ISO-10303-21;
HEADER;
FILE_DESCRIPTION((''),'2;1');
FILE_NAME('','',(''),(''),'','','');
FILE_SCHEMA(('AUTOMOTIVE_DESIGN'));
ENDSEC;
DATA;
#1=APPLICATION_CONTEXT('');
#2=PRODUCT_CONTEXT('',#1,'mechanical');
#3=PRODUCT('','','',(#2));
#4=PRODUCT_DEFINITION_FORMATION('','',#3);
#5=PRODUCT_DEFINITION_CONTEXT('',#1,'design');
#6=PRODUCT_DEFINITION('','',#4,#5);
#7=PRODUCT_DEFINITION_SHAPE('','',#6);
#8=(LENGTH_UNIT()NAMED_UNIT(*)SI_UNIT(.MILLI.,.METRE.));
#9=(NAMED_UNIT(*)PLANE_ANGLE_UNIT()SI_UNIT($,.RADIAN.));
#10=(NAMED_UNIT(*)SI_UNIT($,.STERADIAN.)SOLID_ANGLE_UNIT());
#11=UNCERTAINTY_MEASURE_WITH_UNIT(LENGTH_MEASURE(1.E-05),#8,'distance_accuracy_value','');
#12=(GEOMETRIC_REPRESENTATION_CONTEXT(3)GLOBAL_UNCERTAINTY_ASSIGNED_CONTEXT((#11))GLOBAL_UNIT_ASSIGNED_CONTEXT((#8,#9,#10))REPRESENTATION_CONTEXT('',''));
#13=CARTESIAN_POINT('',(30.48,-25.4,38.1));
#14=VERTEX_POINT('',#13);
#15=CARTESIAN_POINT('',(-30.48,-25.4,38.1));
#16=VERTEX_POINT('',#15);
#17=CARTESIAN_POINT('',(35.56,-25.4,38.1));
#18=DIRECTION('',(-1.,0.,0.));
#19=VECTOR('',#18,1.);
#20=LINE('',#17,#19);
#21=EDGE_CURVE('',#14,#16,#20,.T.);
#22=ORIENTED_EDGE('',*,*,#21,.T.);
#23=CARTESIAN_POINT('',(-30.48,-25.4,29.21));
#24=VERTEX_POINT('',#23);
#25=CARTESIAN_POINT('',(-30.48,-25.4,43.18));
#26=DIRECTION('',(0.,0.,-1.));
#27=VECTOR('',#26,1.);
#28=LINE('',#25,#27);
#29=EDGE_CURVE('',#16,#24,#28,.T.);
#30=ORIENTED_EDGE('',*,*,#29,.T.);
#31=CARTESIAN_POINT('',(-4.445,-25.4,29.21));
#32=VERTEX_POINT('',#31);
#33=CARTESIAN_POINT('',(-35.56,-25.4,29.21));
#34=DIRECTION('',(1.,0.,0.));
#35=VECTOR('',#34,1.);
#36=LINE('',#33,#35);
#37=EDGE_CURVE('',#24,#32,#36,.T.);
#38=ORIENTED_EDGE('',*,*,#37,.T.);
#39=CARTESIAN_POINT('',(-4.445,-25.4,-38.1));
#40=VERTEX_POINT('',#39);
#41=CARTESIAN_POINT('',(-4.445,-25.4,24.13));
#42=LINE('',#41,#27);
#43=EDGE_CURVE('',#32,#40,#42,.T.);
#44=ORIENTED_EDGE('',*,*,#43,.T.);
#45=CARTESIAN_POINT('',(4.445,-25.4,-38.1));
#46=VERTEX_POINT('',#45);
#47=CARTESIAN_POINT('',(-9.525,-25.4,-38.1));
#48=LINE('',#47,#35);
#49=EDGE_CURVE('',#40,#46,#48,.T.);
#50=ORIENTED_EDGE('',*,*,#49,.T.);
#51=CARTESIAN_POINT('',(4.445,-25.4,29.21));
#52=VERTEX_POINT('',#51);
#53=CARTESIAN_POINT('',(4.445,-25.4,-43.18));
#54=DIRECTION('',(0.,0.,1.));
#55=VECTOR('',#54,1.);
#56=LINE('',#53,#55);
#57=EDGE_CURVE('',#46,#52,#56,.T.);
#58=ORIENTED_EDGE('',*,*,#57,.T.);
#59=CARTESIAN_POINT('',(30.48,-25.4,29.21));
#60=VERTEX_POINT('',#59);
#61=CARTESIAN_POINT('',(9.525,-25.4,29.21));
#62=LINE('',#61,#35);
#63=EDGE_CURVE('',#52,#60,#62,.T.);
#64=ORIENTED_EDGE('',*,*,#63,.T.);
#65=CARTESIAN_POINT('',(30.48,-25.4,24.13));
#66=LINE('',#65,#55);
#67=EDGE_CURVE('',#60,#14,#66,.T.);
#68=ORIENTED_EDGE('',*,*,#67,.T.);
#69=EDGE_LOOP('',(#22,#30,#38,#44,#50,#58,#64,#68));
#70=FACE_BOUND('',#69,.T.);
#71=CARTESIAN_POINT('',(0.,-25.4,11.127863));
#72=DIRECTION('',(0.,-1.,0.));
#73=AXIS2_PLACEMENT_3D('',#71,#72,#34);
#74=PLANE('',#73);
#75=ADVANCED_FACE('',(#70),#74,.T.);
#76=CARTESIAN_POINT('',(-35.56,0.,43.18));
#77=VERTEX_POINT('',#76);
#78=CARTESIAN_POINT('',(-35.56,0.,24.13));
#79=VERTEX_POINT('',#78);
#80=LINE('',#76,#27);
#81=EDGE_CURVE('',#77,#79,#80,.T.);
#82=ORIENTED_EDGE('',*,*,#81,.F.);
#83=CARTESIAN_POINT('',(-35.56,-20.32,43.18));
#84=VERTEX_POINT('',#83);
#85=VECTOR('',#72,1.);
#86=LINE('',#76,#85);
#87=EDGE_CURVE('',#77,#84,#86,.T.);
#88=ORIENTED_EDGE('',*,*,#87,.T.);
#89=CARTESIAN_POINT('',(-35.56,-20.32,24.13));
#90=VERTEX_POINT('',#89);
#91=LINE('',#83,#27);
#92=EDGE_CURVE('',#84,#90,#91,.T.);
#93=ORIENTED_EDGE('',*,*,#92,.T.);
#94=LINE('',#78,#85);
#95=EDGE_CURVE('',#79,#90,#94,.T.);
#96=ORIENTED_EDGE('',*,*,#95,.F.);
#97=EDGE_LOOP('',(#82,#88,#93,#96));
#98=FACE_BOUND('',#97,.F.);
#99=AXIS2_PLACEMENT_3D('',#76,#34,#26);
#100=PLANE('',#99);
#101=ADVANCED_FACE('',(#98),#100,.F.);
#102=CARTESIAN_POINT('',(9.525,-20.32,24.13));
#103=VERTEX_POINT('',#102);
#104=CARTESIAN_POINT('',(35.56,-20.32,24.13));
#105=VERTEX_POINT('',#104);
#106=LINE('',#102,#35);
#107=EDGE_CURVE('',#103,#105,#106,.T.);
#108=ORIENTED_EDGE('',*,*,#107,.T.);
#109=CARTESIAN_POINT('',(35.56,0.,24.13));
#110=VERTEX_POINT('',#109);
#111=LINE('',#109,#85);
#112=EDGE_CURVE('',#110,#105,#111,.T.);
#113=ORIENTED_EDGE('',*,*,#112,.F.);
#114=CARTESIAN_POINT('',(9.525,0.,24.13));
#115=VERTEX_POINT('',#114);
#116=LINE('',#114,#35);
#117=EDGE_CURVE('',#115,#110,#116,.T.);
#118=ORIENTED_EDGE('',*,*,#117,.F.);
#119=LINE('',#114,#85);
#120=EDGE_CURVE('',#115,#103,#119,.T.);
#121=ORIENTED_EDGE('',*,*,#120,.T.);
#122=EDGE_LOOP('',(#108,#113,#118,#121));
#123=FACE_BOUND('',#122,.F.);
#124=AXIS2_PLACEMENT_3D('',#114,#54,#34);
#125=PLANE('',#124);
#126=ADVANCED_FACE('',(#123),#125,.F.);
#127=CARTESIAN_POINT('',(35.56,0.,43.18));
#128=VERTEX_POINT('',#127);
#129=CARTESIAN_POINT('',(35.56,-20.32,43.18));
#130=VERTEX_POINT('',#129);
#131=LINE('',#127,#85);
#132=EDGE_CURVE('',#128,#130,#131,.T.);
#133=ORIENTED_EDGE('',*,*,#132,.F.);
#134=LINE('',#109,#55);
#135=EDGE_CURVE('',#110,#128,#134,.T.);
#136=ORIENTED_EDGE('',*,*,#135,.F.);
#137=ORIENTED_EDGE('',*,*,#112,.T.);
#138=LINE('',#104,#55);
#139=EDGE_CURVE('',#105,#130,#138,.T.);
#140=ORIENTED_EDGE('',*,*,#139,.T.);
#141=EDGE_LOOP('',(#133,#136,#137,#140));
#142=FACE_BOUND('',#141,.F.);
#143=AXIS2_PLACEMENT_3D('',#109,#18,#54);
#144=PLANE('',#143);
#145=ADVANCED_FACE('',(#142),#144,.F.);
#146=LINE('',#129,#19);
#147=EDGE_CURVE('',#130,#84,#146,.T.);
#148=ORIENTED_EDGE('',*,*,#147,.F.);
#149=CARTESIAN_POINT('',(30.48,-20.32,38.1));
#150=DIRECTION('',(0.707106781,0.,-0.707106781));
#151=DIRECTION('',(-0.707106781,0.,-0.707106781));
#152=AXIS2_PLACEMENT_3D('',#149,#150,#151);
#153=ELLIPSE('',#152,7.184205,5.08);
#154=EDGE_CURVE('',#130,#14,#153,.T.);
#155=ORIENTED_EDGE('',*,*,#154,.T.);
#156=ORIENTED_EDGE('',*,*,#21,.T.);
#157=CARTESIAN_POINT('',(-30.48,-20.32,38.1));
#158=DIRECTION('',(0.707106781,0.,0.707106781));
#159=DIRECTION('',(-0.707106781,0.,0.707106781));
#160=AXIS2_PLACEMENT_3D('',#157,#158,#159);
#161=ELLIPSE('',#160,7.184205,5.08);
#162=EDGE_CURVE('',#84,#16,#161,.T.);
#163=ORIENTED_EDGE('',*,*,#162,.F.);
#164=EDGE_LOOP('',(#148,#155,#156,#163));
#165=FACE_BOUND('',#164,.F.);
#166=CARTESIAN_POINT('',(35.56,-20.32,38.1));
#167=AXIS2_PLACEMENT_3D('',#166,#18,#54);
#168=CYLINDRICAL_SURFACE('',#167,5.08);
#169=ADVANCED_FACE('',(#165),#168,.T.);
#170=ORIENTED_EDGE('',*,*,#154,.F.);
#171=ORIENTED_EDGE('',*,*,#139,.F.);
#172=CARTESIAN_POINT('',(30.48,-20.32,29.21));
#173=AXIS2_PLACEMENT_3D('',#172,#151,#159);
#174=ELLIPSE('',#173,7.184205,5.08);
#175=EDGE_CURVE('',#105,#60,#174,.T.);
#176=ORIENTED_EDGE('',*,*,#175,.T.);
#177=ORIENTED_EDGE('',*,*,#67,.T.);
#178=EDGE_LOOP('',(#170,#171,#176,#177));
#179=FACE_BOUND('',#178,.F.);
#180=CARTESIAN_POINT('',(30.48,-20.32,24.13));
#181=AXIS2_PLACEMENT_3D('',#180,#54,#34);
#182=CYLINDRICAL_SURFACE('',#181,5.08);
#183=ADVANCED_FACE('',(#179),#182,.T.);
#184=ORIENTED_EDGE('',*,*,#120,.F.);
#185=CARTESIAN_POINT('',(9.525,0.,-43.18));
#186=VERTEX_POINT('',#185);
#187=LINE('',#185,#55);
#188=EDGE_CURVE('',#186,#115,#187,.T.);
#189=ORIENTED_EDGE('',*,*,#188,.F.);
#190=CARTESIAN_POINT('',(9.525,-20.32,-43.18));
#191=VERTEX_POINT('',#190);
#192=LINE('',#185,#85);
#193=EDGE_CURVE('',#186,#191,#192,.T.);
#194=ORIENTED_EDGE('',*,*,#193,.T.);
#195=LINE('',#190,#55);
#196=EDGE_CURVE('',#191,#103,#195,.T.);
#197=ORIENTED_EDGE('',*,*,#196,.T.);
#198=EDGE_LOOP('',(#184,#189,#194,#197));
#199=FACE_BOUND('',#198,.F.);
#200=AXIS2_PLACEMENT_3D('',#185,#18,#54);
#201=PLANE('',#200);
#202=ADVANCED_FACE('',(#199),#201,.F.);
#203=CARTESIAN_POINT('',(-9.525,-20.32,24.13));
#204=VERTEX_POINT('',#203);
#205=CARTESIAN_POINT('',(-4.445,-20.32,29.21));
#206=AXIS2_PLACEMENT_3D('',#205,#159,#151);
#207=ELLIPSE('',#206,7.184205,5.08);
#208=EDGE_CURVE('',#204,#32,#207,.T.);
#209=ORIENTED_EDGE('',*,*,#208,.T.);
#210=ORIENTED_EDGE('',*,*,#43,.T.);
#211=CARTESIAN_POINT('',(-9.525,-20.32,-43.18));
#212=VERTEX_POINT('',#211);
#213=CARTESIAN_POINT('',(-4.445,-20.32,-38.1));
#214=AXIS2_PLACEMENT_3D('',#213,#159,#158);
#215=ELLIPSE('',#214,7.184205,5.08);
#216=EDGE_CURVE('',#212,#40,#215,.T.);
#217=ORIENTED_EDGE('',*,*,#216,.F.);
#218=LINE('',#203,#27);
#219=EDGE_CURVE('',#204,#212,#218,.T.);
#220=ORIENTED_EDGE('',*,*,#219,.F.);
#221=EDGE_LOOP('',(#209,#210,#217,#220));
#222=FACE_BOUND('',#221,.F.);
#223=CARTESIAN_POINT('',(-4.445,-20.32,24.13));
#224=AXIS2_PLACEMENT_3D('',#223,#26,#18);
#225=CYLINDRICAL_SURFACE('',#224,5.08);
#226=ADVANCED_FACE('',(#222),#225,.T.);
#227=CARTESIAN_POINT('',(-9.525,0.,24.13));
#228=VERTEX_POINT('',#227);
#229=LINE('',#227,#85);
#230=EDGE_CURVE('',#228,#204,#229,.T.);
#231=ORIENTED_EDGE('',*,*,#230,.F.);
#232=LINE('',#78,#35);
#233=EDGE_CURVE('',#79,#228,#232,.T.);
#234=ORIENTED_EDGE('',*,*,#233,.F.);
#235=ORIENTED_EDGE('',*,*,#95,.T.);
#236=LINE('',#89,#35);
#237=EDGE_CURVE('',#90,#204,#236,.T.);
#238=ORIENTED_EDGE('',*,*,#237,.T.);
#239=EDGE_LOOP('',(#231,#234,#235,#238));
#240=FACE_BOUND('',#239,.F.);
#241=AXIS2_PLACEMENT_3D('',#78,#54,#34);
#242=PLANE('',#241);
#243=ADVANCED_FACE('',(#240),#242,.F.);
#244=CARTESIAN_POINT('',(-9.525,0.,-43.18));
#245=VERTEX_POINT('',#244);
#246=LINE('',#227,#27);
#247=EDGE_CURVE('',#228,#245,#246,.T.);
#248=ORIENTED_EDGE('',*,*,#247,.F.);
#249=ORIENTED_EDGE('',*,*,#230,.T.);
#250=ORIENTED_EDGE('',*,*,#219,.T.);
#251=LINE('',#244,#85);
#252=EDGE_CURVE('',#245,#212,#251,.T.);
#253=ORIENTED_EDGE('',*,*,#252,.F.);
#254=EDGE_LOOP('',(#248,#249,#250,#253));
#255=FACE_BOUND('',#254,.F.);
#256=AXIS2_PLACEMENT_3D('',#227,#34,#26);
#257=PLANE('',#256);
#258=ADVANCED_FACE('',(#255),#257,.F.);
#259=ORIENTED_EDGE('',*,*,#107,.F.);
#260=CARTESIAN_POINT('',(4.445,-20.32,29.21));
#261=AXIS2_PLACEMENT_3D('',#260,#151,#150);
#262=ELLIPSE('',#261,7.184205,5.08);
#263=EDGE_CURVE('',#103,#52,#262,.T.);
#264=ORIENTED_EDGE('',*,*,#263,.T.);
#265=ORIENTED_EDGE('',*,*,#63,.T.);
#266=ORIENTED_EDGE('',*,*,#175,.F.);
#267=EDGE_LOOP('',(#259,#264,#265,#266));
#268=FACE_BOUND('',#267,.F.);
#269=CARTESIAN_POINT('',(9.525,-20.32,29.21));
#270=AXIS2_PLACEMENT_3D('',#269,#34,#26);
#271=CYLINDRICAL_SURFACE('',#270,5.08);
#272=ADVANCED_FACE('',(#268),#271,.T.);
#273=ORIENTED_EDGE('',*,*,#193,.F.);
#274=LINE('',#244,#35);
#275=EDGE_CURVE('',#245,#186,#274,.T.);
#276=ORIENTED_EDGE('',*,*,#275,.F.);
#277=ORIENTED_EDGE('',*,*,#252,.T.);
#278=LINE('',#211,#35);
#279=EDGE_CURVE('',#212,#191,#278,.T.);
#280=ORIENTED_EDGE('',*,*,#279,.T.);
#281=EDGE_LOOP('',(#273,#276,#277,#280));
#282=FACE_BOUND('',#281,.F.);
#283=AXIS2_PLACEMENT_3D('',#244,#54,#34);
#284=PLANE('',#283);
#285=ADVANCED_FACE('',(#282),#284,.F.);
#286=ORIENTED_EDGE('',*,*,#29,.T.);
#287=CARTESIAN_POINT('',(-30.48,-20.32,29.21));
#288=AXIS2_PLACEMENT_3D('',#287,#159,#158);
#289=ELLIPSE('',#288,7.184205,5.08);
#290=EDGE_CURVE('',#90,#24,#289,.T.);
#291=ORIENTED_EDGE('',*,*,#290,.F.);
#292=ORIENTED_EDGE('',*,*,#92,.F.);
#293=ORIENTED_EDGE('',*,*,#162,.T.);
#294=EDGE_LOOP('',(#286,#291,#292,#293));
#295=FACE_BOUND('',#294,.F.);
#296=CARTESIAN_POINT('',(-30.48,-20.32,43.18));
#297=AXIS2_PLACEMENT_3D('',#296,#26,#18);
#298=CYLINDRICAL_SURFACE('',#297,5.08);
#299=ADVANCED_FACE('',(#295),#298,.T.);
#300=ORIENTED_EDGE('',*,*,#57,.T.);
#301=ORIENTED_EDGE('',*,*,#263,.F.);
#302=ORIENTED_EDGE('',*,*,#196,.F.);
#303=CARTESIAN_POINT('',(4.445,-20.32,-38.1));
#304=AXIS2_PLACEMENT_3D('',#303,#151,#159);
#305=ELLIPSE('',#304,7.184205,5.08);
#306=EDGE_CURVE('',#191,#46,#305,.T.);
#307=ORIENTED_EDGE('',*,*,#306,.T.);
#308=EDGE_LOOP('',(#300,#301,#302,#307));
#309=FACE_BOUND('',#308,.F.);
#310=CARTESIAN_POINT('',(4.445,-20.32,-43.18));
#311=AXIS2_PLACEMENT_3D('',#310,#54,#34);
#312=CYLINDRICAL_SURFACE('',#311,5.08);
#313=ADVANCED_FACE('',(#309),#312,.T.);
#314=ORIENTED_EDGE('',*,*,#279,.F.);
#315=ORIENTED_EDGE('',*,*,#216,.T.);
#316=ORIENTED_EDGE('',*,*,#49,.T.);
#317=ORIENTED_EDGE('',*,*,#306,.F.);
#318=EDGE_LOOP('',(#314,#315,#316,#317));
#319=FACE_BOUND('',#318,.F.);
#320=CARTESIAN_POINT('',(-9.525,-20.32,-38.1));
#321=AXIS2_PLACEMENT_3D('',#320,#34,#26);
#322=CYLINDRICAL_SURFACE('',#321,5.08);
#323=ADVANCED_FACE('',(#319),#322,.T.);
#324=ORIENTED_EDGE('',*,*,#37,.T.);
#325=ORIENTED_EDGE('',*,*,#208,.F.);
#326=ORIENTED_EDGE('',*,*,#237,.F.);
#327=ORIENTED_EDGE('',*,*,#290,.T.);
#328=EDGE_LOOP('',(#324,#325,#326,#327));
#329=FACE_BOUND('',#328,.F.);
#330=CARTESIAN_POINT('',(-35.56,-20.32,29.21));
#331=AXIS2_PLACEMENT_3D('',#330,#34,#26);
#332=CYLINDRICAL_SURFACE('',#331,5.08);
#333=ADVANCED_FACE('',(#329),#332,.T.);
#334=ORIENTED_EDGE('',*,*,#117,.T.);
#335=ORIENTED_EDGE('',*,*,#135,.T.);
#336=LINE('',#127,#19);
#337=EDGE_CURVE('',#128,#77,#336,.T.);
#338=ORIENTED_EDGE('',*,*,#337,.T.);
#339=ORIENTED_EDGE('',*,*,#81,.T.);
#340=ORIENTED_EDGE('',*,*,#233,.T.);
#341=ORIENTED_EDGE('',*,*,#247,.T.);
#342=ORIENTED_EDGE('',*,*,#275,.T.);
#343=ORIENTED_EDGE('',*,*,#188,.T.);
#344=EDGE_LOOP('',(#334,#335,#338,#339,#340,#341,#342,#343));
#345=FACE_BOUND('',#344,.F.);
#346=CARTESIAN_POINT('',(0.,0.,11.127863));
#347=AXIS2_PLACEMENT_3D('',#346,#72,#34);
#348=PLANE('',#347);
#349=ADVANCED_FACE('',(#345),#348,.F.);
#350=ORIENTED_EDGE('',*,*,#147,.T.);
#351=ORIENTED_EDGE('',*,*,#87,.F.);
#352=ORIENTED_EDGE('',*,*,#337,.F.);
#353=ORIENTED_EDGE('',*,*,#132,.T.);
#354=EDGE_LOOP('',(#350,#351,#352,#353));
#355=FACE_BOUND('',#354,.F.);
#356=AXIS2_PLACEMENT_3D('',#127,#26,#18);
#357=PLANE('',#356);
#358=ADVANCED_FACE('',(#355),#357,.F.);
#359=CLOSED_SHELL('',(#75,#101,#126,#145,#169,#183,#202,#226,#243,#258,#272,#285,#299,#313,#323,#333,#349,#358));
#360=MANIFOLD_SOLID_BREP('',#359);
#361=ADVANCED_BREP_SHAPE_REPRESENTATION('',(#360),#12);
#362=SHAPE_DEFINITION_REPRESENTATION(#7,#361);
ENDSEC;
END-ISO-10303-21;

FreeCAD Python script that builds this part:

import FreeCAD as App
import Part
import Sketcher
Q = App.Units.Quantity


def edges_at(feature, points):
    """Names of the edges that pass closest to the given points."""
    edges = feature.Shape.Edges
    near = lambda p: min(range(len(edges)), key=lambda i: edges[i].distToShape(Part.Vertex(*p))[0])
    return sorted({f"Edge{near(p) + 1}" for p in points})

doc = App.newDocument("Part")
body = doc.addObject("PartDesign::Body", "Body")

sketch1 = body.newObject("Sketcher::SketchObject", "Sketch")
sketch1.AttachmentSupport = (doc.getObject("XZ_Plane"), [""])
sketch1.MapMode = "FlatFace"
sketch1.addGeometry(Part.LineSegment(App.Vector(-36, 43, 0), App.Vector(-36, 24, 0)), False)
sketch1.addGeometry(Part.LineSegment(App.Vector(-36, 24, 0), App.Vector(-10, 24, 0)), False)
sketch1.addGeometry(Part.LineSegment(App.Vector(-10, 24, 0), App.Vector(-10, -43, 0)), False)
sketch1.addGeometry(Part.LineSegment(App.Vector(-10, -43, 0), App.Vector(10, -43, 0)), False)
sketch1.addGeometry(Part.LineSegment(App.Vector(10, -43, 0), App.Vector(10, 24, 0)), False)
sketch1.addGeometry(Part.LineSegment(App.Vector(10, 24, 0), App.Vector(36, 24, 0)), False)
sketch1.addGeometry(Part.LineSegment(App.Vector(36, 24, 0), App.Vector(36, 43, 0)), False)
sketch1.addGeometry(Part.LineSegment(App.Vector(36, 43, 0), App.Vector(-36, 43, 0)), False)
sketch1.addConstraint(Sketcher.Constraint("Coincident", 0, 2, 1, 1))
sketch1.addConstraint(Sketcher.Constraint("Coincident", 1, 2, 2, 1))
sketch1.addConstraint(Sketcher.Constraint("Coincident", 2, 2, 3, 1))
sketch1.addConstraint(Sketcher.Constraint("Coincident", 3, 2, 4, 1))
sketch1.addConstraint(Sketcher.Constraint("Coincident", 4, 2, 5, 1))
sketch1.addConstraint(Sketcher.Constraint("Coincident", 5, 2, 6, 1))
sketch1.addConstraint(Sketcher.Constraint("Coincident", 6, 2, 7, 1))
sketch1.addConstraint(Sketcher.Constraint("Coincident", 7, 2, 0, 1))
sketch1.addConstraint(Sketcher.Constraint("Vertical", 0))
sketch1.addConstraint(Sketcher.Constraint("Horizontal", 1))
sketch1.addConstraint(Sketcher.Constraint("Vertical", 2))
sketch1.addConstraint(Sketcher.Constraint("Horizontal", 3))
sketch1.addConstraint(Sketcher.Constraint("Vertical", 4))
sketch1.addConstraint(Sketcher.Constraint("Horizontal", 5))
sketch1.addConstraint(Sketcher.Constraint("Vertical", 6))
sketch1.addConstraint(Sketcher.Constraint("Horizontal", 7))
sketch1.addConstraint(Sketcher.Constraint("Symmetric", 1, 2, 4, 2, -2))
sketch1.addConstraint(Sketcher.Constraint("Equal", 1, 5))
sketch1.addConstraint(Sketcher.Constraint("Equal", 3, 0))
sketch1.addConstraint(Sketcher.Constraint("DistanceX", 7, 2, 7, 1, Q("2.8 in")))
sketch1.addConstraint(Sketcher.Constraint("DistanceX", 3, 1, 3, 2, Q("0.75 in")))
sketch1.addConstraint(Sketcher.Constraint("DistanceY", 2, 2, 2, 1, Q("2.65 in")))
sketch1.addConstraint(Sketcher.Constraint("DistanceY", 2, 2, -1, 1, Q("1.7 in")))
pad1 = body.newObject("PartDesign::Pad", "Pad")
pad1.Profile = sketch1
pad1.Length = Q("1 in")
doc.recompute()

fillet = body.newObject("PartDesign::Fillet", "Fillet")
fillet.Base = (pad1, edges_at(pad1, [
    (0, -25.4, 43.18),
    (35.56, -25.4, 33.655),
    (22.543, -25.4, 24.13),
    (9.525, -25.4, -9.525),
    (0, -25.4, -43.18),
    (-9.525, -25.4, -9.525),
    (-22.543, -25.4, 24.13),
    (-35.56, -25.4, 33.655),
]))
fillet.Radius = Q("0.2 in")

doc.recompute()
